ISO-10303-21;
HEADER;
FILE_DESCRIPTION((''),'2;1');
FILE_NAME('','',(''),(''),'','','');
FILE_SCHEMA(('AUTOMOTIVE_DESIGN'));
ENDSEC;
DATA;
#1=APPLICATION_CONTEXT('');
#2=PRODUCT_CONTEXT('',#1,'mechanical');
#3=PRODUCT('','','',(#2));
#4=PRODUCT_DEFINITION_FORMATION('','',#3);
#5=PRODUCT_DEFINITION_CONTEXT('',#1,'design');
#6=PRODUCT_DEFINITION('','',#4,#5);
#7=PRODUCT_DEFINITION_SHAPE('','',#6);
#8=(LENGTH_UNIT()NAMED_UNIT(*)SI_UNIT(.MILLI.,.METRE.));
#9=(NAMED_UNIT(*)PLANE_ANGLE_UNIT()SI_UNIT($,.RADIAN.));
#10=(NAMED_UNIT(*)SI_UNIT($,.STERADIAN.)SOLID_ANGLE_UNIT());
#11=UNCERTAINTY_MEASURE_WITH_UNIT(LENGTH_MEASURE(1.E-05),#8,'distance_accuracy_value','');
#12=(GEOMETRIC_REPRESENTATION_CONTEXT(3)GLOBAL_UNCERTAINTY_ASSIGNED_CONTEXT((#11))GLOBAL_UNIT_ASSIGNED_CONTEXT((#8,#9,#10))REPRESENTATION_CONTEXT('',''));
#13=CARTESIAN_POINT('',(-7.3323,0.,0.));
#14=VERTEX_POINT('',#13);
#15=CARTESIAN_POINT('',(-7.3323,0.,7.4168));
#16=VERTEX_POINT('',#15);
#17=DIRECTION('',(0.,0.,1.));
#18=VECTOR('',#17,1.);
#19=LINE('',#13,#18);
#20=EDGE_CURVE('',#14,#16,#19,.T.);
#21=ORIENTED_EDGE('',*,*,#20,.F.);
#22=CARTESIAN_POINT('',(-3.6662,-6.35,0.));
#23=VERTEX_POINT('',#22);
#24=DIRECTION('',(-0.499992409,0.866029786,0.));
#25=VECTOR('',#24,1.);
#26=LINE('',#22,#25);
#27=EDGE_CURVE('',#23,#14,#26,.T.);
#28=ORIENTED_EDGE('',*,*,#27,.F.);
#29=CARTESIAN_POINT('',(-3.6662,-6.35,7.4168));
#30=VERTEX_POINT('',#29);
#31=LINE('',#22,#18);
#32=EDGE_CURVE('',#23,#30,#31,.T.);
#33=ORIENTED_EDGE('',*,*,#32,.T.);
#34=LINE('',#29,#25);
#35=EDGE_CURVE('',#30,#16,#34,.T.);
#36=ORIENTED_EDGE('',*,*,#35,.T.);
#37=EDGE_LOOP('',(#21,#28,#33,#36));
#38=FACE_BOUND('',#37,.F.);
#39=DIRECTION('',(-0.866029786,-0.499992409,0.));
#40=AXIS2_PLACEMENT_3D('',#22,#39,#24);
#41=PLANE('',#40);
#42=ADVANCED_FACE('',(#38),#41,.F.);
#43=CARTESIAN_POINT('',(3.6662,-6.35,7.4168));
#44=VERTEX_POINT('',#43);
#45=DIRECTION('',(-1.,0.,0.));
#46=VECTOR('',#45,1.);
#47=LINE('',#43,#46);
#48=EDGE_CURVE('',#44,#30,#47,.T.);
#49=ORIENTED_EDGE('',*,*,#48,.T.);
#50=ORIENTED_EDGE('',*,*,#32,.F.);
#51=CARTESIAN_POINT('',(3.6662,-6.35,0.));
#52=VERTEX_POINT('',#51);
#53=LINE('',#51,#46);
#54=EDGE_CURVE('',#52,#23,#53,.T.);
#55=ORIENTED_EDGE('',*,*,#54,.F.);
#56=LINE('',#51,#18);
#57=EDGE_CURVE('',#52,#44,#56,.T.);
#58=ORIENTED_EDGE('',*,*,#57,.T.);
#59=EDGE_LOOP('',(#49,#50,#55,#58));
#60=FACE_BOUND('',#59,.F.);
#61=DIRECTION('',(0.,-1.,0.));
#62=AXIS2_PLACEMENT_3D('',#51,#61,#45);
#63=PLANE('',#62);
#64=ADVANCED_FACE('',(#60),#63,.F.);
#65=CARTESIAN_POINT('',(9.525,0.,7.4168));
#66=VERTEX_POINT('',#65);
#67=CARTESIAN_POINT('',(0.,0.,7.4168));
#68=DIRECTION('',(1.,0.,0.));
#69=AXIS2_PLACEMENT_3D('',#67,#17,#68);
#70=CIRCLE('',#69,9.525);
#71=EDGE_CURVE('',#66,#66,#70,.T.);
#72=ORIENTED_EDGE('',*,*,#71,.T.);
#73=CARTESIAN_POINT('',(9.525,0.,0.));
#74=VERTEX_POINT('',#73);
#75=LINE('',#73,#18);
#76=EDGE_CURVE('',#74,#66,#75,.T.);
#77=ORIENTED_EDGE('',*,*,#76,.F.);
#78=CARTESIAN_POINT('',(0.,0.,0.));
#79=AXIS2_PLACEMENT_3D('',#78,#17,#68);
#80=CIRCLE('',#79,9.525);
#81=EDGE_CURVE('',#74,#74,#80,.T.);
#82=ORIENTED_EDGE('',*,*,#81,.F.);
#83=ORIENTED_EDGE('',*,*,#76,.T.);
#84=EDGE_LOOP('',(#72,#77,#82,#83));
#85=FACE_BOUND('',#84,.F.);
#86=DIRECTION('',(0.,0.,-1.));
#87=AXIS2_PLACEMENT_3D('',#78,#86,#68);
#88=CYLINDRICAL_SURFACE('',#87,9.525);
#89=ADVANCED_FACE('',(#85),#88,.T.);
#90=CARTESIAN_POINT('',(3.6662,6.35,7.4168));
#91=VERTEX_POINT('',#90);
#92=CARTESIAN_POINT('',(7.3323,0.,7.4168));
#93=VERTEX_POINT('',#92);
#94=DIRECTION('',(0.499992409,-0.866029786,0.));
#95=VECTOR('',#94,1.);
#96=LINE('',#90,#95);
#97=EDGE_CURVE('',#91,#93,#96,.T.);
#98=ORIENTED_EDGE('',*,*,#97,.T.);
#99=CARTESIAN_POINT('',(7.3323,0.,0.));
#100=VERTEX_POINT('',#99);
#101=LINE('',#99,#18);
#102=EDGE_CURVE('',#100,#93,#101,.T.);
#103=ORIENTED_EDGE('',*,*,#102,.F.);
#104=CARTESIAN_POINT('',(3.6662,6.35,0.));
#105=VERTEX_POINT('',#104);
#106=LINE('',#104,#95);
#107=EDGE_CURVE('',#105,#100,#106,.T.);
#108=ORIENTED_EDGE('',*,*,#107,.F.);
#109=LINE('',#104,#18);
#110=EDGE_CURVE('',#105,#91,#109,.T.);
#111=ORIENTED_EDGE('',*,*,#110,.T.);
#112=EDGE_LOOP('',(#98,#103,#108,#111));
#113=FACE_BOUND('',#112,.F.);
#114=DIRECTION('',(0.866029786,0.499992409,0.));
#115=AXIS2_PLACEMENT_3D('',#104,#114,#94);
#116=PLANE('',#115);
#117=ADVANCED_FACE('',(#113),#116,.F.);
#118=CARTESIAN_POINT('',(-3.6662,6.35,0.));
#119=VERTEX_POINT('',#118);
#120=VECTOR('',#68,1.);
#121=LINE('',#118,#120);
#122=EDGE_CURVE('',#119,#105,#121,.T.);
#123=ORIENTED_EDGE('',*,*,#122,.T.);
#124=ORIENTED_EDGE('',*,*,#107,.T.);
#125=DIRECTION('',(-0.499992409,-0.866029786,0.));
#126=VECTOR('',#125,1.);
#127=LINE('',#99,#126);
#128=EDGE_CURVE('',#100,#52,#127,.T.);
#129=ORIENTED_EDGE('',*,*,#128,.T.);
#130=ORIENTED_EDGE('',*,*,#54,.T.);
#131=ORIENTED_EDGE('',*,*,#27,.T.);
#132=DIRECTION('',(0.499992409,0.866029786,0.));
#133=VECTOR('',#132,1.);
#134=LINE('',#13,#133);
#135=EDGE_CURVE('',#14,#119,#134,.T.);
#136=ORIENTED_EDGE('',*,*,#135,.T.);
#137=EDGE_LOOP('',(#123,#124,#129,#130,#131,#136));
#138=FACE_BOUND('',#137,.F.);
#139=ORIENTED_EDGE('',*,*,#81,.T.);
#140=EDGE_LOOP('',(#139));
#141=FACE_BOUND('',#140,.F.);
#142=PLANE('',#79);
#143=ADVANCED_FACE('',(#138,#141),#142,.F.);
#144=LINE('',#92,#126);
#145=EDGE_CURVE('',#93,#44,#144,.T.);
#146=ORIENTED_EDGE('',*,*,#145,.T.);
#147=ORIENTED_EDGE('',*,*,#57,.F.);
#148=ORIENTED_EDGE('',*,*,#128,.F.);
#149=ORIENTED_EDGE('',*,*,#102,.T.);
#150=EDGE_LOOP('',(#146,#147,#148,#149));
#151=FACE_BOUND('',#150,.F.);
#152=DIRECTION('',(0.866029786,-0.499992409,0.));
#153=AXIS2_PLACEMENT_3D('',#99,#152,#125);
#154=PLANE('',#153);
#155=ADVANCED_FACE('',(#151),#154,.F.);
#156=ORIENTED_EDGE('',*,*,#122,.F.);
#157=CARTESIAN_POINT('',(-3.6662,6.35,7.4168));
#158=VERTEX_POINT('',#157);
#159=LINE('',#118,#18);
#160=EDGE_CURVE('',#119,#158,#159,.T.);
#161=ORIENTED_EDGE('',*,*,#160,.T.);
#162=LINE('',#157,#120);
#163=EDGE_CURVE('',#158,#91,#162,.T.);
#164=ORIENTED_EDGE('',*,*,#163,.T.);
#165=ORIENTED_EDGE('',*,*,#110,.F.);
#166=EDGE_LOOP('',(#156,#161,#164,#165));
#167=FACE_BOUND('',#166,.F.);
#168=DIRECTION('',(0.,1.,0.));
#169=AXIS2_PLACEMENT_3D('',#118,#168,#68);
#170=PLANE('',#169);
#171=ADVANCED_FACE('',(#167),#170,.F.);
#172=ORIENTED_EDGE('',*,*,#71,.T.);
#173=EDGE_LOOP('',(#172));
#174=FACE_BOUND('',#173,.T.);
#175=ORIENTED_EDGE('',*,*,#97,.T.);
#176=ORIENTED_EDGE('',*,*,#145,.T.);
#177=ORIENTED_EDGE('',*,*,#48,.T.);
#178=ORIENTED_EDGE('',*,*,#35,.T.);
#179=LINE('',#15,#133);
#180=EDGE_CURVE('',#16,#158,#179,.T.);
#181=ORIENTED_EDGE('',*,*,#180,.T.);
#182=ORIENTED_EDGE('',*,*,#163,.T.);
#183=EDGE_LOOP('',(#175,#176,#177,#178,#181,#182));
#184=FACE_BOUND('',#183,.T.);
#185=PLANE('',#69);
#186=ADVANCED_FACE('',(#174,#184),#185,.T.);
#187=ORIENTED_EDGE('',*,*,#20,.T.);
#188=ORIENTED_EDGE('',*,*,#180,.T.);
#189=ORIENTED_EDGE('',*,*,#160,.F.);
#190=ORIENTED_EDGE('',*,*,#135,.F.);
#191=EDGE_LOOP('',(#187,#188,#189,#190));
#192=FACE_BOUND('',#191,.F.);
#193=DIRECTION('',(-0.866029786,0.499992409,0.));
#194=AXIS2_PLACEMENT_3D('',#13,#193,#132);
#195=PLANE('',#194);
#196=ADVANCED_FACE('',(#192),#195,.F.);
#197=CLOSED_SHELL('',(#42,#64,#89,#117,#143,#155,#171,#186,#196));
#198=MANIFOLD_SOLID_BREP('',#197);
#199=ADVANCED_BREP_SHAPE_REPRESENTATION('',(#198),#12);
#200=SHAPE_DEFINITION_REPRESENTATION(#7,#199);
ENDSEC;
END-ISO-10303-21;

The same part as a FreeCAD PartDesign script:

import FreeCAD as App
import Part
import Sketcher

V = App.Vector
Q = App.Units.Quantity

doc = App.newDocument("Part")
body = doc.addObject("PartDesign::Body", "Body")

# Sketch on XY plane
sketch1 = body.newObject("Sketcher::SketchObject", "Sketch")
sketch1.AttachmentSupport = (doc.getObject("XY_Plane"), [""])
sketch1.MapMode = "FlatFace"
sketch1.addGeometry([
    Part.Circle(V(0, 0, 0), V(0, 0, 1), 9.525),  # 0
    Part.LineSegment(V(-3.6662, 6.35, 0), V(3.6662, 6.35, 0)),  # 1
    Part.LineSegment(V(3.6662, 6.35, 0), V(7.3323, 0, 0)),  # 2
    Part.LineSegment(V(7.3323, 0, 0), V(3.6662, -6.35, 0)),  # 3
    Part.LineSegment(V(3.6662, -6.35, 0), V(-3.6662, -6.35, 0)),  # 4
    Part.LineSegment(V(-3.6662, -6.35, 0), V(-7.3323, 0, 0)),  # 5
    Part.LineSegment(V(-7.3323, 0, 0), V(-3.6662, 6.35, 0)),  # 6
], False)
sketch1.addConstraint([
    Sketcher.Constraint("Coincident", 1, 2, 2, 1),
    Sketcher.Constraint("Coincident", 2, 2, 3, 1),
    Sketcher.Constraint("Coincident", 3, 2, 4, 1),
    Sketcher.Constraint("Coincident", 4, 2, 5, 1),
    Sketcher.Constraint("Coincident", 5, 2, 6, 1),
    Sketcher.Constraint("Coincident", 6, 2, 1, 1),
    Sketcher.Constraint("Horizontal", 1),
    Sketcher.Constraint("Horizontal", 4),
    Sketcher.Constraint("Coincident", 0, 3, -1, 1),
    Sketcher.Constraint("Symmetric", 1, 2, 4, 2, -1, 1),
    Sketcher.Constraint("Symmetric", 2, 2, 5, 2, -1, 1),
    Sketcher.Constraint("PointOnObject", 2, 2, -1),
    Sketcher.Constraint("Parallel", 3, 6),
    Sketcher.Constraint("Vertical", 1, 2, 3, 2),
    Sketcher.Constraint("Diameter", 0, Q("0.75 in")),
    Sketcher.Constraint("DistanceY", 3, 2, 1, 2, Q("0.5 in")),
    Sketcher.Constraint("Angle", 2, Q("-60.0005 deg")),
    Sketcher.Constraint("DistanceX", 4, 2, 2, 2, Q("0.433 in")),
])
pad1 = body.newObject("PartDesign::Pad", "Pad")
pad1.Profile = sketch1
pad1.Length = Q("0.292 in")

doc.recompute()
